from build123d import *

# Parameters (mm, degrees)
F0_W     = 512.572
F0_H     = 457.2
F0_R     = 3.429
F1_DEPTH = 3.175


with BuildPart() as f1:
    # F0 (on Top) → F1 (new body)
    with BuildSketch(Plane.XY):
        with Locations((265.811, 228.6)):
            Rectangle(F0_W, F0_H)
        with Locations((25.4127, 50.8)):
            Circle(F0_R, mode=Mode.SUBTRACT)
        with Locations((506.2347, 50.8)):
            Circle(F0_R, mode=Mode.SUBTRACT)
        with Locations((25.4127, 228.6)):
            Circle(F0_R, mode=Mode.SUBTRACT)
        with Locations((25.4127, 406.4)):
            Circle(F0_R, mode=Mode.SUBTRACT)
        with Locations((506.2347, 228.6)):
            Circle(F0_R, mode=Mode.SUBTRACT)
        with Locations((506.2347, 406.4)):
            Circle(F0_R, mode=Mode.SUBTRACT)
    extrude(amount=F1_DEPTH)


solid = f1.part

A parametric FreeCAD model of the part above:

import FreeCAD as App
import Part
import Sketcher
Q = App.Units.Quantity


def add_polygon(sketch, points):
    """Adds a closed chain of lines whose ends are joined by coincident constraints."""
    first, n = sketch.GeometryCount, len(points)
    for a, b in zip(points, points[1:] + points[:1]):
        sketch.addGeometry(Part.LineSegment(App.Vector(*a, 0), App.Vector(*b, 0)), False)
    for i in range(n):
        sketch.addConstraint(Sketcher.Constraint("Coincident", first + i, 2, first + (i + 1) % n, 1))

doc = App.newDocument("Part")
body = doc.addObject("PartDesign::Body", "Body")

# Sketch on XY plane
sketch1 = body.newObject("Sketcher::SketchObject", "Sketch")
sketch1.AttachmentSupport = (doc.getObject("XY_Plane"), [""])
sketch1.MapMode = "FlatFace"
add_polygon(sketch1, [(9.525, 457.2), (9.525, 0), (522.097, 0), (522.097, 457.2)])  # lines 0-3
sketch1.addGeometry(Part.Circle(App.Vector(25.4127, 50.8, 0), App.Vector(0, 0, 1), 3.429), False)  # 4
sketch1.addGeometry(Part.Circle(App.Vector(506.2347, 50.8, 0), App.Vector(0, 0, 1), 3.429), False)  # 5
sketch1.addGeometry(Part.Circle(App.Vector(25.4127, 228.6, 0), App.Vector(0, 0, 1), 3.429), False)  # 6
sketch1.addGeometry(Part.Circle(App.Vector(25.4127, 406.4, 0), App.Vector(0, 0, 1), 3.429), False)  # 7
sketch1.addGeometry(Part.Circle(App.Vector(506.2347, 228.6, 0), App.Vector(0, 0, 1), 3.429), False)  # 8
sketch1.addGeometry(Part.Circle(App.Vector(506.2347, 406.4, 0), App.Vector(0, 0, 1), 3.429), False)  # 9
sketch1.addConstraint(Sketcher.Constraint("Vertical", 0))
sketch1.addConstraint(Sketcher.Constraint("Horizontal", 1))
sketch1.addConstraint(Sketcher.Constraint("Vertical", 2))
sketch1.addConstraint(Sketcher.Constraint("Horizontal", 3))
sketch1.addConstraint(Sketcher.Constraint("Equal", 4, 5))
sketch1.addConstraint(Sketcher.Constraint("Equal", 5, 6))
sketch1.addConstraint(Sketcher.Constraint("Equal", 6, 7))
sketch1.addConstraint(Sketcher.Constraint("Equal", 7, 8))
sketch1.addConstraint(Sketcher.Constraint("Equal", 8, 9))
sketch1.addConstraint(Sketcher.Constraint("PointOnObject", 0, 2, -1))
sketch1.addConstraint(Sketcher.Constraint("Horizontal", 4, 3, 5, 3))
sketch1.addConstraint(Sketcher.Constraint("Horizontal", 6, 3, 8, 3))
sketch1.addConstraint(Sketcher.Constraint("Horizontal", 7, 3, 9, 3))
sketch1.addConstraint(Sketcher.Constraint("Vertical", 4, 3, 6, 3))
sketch1.addConstraint(Sketcher.Constraint("Vertical", 6, 3, 7, 3))
sketch1.addConstraint(Sketcher.Constraint("Vertical", 5, 3, 8, 3))
sketch1.addConstraint(Sketcher.Constraint("Vertical", 8, 3, 9, 3))
sketch1.addConstraint(Sketcher.Constraint("Diameter", 4, Q("0.27 in")))
sketch1.addConstraint(Sketcher.Constraint("DistanceY", 0, 2, 0, 1, Q("18 in")))
sketch1.addConstraint(Sketcher.Constraint("DistanceY", -1, 1, 4, 3, Q("2 in")))
sketch1.addConstraint(Sketcher.Constraint("DistanceY", -1, 1, 6, 3, Q("9 in")))
sketch1.addConstraint(Sketcher.Constraint("DistanceY", -1, 1, 7, 3, Q("16 in")))
sketch1.addConstraint(Sketcher.Constraint("DistanceX", 1, 1, 1, 2, Q("20.18 in")))
sketch1.addConstraint(Sketcher.Constraint("DistanceX", 4, 3, 5, 3, Q("18.93 in")))
sketch1.addConstraint(Sketcher.Constraint("DistanceX", -1, 1, 0, 2, Q("0.375 in")))
sketch1.addConstraint(Sketcher.Constraint("DistanceX", -1, 1, 4, 3, Q("1.0005 in")))
pad1 = body.newObject("PartDesign::Pad", "Pad")
pad1.Profile = sketch1
pad1.Length = Q("0.125 in")

doc.recompute()
